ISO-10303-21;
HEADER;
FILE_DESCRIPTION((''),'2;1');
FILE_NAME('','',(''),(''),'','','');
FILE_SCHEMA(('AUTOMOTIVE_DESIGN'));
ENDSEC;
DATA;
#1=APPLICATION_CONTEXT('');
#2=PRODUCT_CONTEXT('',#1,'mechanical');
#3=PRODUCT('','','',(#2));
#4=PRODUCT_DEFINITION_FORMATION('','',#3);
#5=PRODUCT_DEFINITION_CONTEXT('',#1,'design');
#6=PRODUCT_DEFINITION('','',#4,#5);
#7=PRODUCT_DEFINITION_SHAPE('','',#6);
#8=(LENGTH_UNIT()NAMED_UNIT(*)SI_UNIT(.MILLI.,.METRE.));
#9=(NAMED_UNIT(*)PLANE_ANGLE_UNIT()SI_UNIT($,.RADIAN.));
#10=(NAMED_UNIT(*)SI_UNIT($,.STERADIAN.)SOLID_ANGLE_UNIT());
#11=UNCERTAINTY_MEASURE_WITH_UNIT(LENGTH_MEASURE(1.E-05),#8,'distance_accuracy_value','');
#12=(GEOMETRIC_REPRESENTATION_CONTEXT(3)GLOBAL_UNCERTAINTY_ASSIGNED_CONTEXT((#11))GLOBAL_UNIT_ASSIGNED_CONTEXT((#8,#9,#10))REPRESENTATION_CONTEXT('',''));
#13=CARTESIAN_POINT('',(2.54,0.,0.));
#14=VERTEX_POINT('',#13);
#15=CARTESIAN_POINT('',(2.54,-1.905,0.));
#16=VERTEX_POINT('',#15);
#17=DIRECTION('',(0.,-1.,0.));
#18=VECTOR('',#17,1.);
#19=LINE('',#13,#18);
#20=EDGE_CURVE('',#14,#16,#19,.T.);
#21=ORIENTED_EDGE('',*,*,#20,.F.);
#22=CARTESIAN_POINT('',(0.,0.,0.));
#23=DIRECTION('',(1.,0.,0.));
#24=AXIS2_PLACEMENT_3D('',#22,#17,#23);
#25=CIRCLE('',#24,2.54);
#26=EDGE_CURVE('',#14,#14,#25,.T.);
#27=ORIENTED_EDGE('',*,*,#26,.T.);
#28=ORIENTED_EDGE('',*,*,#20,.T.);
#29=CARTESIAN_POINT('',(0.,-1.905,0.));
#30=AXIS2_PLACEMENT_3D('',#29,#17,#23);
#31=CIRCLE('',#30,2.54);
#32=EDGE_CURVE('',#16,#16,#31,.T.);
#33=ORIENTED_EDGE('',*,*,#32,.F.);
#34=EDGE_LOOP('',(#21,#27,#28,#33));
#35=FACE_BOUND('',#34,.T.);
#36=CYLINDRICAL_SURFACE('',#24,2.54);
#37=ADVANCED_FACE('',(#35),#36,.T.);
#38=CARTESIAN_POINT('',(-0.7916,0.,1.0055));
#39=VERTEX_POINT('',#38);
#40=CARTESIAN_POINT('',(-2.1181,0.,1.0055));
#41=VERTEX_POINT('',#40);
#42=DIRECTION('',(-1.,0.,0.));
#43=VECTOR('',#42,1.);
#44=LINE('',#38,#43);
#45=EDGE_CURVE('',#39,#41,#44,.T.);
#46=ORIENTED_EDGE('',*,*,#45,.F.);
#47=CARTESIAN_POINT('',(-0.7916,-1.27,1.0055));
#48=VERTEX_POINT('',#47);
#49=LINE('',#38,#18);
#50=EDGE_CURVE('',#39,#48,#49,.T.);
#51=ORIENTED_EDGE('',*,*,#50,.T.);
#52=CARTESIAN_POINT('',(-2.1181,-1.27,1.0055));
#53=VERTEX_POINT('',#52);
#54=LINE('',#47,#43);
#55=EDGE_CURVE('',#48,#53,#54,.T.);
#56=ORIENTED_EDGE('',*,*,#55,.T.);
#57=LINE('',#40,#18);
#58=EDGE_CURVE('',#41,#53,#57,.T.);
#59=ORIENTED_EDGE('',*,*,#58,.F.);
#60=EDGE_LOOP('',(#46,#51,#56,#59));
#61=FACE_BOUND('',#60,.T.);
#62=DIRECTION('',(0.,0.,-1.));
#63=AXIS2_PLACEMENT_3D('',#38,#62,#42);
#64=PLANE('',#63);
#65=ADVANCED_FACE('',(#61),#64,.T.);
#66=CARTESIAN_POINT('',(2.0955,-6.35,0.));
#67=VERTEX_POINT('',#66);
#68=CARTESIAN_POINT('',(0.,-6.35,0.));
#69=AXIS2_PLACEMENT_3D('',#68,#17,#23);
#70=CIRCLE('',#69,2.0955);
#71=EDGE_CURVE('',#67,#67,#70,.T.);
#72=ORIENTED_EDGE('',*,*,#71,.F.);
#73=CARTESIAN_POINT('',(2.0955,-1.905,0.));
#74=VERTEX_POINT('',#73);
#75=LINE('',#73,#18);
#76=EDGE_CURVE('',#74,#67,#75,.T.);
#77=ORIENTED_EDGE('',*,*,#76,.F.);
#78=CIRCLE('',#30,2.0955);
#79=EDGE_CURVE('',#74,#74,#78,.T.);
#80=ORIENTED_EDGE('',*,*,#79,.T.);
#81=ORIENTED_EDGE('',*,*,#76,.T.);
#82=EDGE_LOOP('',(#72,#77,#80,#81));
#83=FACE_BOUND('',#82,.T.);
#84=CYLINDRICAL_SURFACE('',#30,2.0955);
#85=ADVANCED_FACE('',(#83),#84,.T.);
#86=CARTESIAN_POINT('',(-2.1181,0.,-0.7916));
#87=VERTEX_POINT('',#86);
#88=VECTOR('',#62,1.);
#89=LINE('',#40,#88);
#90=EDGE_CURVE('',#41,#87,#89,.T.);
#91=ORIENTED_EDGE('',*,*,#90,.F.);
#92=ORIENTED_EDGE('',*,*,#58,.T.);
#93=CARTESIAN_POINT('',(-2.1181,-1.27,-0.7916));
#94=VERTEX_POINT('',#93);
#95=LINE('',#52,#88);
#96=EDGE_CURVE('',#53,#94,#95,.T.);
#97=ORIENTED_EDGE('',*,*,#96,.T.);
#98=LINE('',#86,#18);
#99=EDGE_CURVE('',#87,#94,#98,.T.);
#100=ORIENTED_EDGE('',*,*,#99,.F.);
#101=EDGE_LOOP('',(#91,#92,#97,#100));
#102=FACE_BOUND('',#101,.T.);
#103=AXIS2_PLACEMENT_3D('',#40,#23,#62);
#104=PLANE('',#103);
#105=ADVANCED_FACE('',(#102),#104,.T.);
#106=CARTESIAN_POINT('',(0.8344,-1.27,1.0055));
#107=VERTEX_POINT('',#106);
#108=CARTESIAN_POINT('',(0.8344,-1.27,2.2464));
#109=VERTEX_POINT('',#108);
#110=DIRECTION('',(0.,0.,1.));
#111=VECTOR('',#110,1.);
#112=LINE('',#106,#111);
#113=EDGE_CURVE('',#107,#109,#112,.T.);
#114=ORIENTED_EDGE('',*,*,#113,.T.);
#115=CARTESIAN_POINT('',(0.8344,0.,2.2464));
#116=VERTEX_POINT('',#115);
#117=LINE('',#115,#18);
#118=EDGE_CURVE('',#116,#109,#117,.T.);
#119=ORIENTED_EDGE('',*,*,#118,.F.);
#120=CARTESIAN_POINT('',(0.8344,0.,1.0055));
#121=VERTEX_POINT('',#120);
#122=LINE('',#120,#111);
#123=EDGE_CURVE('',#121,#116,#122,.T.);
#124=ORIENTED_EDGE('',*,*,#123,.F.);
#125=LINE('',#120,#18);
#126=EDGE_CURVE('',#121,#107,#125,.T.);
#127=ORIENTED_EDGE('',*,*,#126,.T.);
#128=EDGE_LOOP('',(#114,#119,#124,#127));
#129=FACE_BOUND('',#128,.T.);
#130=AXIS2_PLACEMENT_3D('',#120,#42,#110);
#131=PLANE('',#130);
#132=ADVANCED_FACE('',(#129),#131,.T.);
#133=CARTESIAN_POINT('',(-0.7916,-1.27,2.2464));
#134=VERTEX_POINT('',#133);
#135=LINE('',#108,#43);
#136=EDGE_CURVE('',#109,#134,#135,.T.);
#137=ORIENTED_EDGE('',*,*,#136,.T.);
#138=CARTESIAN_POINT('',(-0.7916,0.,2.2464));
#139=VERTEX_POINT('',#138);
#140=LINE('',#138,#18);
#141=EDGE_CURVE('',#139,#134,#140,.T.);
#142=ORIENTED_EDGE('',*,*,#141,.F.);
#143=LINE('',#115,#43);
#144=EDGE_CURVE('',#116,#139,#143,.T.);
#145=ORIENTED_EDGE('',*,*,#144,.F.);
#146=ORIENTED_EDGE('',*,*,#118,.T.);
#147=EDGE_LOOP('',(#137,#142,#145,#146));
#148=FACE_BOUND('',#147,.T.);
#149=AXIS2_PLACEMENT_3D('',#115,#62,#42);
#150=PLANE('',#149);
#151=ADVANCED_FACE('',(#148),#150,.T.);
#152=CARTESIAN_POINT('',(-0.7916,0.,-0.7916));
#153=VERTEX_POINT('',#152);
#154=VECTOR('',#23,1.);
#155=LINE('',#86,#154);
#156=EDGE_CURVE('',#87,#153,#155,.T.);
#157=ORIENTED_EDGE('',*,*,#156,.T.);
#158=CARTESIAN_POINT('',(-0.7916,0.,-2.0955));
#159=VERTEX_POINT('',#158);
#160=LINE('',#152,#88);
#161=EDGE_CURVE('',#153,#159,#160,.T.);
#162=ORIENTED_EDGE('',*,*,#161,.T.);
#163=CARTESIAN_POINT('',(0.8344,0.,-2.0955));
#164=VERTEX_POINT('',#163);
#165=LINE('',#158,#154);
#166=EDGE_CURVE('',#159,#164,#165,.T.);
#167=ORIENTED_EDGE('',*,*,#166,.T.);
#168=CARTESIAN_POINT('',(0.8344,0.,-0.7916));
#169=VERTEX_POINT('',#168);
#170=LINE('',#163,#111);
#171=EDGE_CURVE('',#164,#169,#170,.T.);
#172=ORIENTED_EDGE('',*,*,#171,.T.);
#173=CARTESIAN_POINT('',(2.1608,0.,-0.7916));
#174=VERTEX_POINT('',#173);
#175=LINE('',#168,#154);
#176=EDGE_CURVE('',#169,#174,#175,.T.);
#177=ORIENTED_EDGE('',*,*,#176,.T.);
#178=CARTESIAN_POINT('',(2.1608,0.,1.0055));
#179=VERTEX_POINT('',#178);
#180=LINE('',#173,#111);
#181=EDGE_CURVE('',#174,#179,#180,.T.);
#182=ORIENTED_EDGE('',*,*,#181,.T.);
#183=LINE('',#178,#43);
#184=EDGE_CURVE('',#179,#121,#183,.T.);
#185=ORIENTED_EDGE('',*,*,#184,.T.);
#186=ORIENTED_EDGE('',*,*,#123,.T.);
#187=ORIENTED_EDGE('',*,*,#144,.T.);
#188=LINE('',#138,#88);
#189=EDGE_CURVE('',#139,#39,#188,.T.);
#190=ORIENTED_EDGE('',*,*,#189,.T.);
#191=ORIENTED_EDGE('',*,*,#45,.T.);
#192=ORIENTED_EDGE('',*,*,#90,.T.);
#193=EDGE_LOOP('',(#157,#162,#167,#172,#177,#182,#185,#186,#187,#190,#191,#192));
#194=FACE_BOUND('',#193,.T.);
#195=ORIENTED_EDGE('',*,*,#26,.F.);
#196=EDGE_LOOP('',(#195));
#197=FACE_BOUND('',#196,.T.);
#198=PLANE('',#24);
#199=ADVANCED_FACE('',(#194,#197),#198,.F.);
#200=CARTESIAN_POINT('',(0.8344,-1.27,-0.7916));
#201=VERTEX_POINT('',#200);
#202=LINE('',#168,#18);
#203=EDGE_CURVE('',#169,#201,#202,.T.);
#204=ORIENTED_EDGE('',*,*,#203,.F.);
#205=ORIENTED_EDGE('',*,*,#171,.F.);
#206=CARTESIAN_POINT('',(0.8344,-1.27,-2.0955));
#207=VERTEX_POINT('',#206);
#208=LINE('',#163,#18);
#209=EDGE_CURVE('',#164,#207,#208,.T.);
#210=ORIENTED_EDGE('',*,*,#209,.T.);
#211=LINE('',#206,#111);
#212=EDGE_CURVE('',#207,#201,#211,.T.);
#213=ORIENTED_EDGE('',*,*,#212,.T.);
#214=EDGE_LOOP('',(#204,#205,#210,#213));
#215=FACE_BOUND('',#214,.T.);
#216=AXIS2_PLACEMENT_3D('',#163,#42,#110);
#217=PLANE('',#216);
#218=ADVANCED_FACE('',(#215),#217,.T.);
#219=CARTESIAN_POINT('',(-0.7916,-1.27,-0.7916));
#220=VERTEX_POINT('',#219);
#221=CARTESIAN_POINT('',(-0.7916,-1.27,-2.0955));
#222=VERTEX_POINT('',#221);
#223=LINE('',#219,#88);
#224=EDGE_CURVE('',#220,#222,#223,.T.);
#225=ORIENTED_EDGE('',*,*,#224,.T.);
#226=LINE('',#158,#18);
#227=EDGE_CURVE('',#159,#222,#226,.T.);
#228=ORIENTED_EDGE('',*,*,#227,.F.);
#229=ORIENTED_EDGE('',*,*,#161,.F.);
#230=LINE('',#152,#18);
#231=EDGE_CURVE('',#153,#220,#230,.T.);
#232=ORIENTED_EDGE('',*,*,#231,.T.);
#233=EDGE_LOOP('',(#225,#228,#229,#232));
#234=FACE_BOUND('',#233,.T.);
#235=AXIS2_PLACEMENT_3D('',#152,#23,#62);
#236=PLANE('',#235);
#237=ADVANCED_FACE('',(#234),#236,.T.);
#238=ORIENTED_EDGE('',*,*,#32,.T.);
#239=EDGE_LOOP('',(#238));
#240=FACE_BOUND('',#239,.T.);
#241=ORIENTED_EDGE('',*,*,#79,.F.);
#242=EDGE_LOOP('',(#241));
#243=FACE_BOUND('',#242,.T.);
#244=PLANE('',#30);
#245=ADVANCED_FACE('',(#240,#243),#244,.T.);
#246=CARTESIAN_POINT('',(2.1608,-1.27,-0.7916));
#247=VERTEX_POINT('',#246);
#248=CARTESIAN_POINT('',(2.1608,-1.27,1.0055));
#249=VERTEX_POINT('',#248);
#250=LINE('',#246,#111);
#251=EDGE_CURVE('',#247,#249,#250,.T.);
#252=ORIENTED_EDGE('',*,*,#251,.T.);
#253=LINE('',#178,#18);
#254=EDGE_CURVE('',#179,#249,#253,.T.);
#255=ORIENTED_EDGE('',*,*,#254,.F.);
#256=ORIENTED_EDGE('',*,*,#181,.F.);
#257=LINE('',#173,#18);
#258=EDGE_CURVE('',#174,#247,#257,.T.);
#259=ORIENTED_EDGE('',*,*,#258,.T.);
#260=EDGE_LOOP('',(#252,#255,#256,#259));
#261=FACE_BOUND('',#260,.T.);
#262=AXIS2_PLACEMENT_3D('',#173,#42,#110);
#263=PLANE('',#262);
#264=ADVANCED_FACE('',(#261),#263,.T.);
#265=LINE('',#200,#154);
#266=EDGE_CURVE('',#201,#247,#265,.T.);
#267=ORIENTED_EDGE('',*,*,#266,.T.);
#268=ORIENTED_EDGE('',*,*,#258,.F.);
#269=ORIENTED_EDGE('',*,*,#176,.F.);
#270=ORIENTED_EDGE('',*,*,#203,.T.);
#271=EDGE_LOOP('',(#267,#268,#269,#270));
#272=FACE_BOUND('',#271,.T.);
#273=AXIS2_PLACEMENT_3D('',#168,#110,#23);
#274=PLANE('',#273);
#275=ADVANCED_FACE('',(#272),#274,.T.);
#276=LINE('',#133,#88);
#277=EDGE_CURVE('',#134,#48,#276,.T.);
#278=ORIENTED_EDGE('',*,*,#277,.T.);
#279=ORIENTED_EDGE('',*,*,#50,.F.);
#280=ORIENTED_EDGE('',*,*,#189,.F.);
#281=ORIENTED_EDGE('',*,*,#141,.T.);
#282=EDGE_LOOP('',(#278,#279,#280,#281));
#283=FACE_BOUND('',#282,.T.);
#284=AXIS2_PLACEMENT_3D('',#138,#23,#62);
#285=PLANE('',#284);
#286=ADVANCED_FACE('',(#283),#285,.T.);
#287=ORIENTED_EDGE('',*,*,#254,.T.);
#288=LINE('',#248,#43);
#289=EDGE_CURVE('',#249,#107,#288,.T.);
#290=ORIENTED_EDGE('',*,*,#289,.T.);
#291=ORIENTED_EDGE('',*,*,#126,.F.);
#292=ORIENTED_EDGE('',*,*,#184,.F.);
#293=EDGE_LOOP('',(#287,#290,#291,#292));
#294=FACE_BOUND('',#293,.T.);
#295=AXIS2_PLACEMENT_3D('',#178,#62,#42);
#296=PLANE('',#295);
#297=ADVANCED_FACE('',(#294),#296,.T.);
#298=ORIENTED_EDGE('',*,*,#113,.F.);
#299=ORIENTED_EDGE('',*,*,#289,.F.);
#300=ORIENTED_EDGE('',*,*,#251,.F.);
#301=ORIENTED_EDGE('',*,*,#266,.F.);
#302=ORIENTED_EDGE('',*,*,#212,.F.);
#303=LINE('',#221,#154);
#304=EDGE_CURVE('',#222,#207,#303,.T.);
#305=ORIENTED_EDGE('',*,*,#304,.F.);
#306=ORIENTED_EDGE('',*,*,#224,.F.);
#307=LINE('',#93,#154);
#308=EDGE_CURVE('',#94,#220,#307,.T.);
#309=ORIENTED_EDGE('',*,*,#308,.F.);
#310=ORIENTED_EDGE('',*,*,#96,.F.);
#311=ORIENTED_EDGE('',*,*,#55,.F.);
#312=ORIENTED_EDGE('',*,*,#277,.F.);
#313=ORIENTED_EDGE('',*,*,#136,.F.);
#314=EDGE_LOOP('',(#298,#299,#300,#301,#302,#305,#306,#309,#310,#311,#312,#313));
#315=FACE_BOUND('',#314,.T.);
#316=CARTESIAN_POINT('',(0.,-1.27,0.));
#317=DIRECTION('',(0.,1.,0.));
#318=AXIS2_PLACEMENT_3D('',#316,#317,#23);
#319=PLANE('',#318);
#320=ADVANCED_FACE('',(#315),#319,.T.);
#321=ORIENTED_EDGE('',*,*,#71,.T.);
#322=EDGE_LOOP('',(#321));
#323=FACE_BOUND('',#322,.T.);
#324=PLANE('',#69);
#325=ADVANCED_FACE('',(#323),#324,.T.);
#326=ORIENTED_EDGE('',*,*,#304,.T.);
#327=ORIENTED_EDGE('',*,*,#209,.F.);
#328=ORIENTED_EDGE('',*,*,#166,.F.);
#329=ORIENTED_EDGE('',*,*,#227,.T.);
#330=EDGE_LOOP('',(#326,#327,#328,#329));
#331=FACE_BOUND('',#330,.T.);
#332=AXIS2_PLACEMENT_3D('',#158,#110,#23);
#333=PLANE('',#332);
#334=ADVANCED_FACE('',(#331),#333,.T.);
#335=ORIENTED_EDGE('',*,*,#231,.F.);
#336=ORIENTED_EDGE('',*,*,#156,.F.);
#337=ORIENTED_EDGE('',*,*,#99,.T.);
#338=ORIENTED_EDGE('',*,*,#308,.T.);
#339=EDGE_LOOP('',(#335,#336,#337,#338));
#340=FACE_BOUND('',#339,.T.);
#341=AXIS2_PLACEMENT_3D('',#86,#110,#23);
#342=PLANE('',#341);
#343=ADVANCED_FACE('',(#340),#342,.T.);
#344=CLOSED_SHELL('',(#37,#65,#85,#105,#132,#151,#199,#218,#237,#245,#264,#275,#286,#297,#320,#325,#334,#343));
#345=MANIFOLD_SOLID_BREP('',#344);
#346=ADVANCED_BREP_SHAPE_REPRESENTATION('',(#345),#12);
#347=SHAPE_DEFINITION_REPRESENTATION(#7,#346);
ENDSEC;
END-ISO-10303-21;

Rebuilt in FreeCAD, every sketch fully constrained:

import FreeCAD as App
import Part
import Sketcher
from FreeCAD import Vector
Q = App.Units.Quantity

doc = App.newDocument("Part")
body = doc.addObject("PartDesign::Body", "Body")

# Sketch on XY plane
sketch1 = body.newObject("Sketcher::SketchObject", "Sketch")
sketch1.AttachmentSupport = (doc.getObject("XY_Plane"), [""])
sketch1.MapMode = "FlatFace"
sketch1.addGeometry([
    Part.LineSegment(Vector(2.54, 0, 0), Vector(0, 0, 0)),  # 0
    Part.LineSegment(Vector(0, 0, 0), Vector(0, -6.35, 0)),  # 1
    Part.LineSegment(Vector(0, -6.35, 0), Vector(2.0955, -6.35, 0)),  # 2
    Part.LineSegment(Vector(2.0955, -6.35, 0), Vector(2.0955, -1.905, 0)),  # 3
    Part.LineSegment(Vector(2.0955, -1.905, 0), Vector(2.54, -1.905, 0)),  # 4
    Part.LineSegment(Vector(2.54, -1.905, 0), Vector(2.54, 0, 0)),  # 5
], False)
sketch1.addConstraint([
    Sketcher.Constraint("Coincident", 0, 2, 1, 1),
    Sketcher.Constraint("Coincident", 1, 2, 2, 1),
    Sketcher.Constraint("Coincident", 2, 2, 3, 1),
    Sketcher.Constraint("Coincident", 3, 2, 4, 1),
    Sketcher.Constraint("Coincident", 4, 2, 5, 1),
    Sketcher.Constraint("Coincident", 5, 2, 0, 1),
    Sketcher.Constraint("Horizontal", 0),
    Sketcher.Constraint("Vertical", 1),
    Sketcher.Constraint("Horizontal", 2),
    Sketcher.Constraint("Vertical", 3),
    Sketcher.Constraint("Horizontal", 4),
    Sketcher.Constraint("Vertical", 5),
    Sketcher.Constraint("Coincident", 0, 2, -1, 1),
    Sketcher.Constraint("DistanceX", 0, 2, 0, 1, Q("0.1 in")),
    Sketcher.Constraint("DistanceY", 3, 1, 3, 2, Q("0.175 in")),
    Sketcher.Constraint("DistanceY", 5, 1, 5, 2, Q("0.075 in")),
    Sketcher.Constraint("DistanceX", 4, 1, 4, 2, Q("0.0175 in")),
])
revolution = body.newObject("PartDesign::Revolution", "Revolution")
revolution.Profile = sketch1
revolution.ReferenceAxis = (sketch1, ["V_Axis"])
revolution.Angle = 360

# Sketch on XZ plane
sketch2 = body.newObject("Sketcher::SketchObject", "Sketch001")
sketch2.AttachmentSupport = (doc.getObject("XZ_Plane"), [""])
sketch2.MapMode = "FlatFace"
sketch2.addGeometry([
    Part.LineSegment(Vector(2.1608, 1.0055, 0), Vector(2.1608, -0.7916, 0)),  # 0
    Part.LineSegment(Vector(2.1608, -0.7916, 0), Vector(0.8344, -0.7916, 0)),  # 1
    Part.LineSegment(Vector(0.8344, -0.7916, 0), Vector(0.8344, -2.0955, 0)),  # 2
    Part.LineSegment(Vector(0.8344, -2.0955, 0), Vector(-0.7916, -2.0955, 0)),  # 3
    Part.LineSegment(Vector(-0.7916, -2.0955, 0), Vector(-0.7916, -0.7916, 0)),  # 4
    Part.LineSegment(Vector(-0.7916, -0.7916, 0), Vector(-2.1181, -0.7916, 0)),  # 5
    Part.LineSegment(Vector(-2.1181, -0.7916, 0), Vector(-2.1181, 1.0055, 0)),  # 6
    Part.LineSegment(Vector(-2.1181, 1.0055, 0), Vector(-0.7916, 1.0055, 0)),  # 7
    Part.LineSegment(Vector(-0.7916, 1.0055, 0), Vector(-0.7916, 2.2464, 0)),  # 8
    Part.LineSegment(Vector(-0.7916, 2.2464, 0), Vector(0.8344, 2.2464, 0)),  # 9
    Part.LineSegment(Vector(0.8344, 2.2464, 0), Vector(0.8344, 1.0055, 0)),  # 10
    Part.LineSegment(Vector(0.8344, 1.0055, 0), Vector(2.1608, 1.0055, 0)),  # 11
], False)
sketch2.addConstraint([
    Sketcher.Constraint("Coincident", 0, 2, 1, 1),
    Sketcher.Constraint("Coincident", 1, 2, 2, 1),
    Sketcher.Constraint("Coincident", 2, 2, 3, 1),
    Sketcher.Constraint("Coincident", 3, 2, 4, 1),
    Sketcher.Constraint("Coincident", 4, 2, 5, 1),
    Sketcher.Constraint("Coincident", 5, 2, 6, 1),
    Sketcher.Constraint("Coincident", 6, 2, 7, 1),
    Sketcher.Constraint("Coincident", 7, 2, 8, 1),
    Sketcher.Constraint("Coincident", 8, 2, 9, 1),
    Sketcher.Constraint("Coincident", 9, 2, 10, 1),
    Sketcher.Constraint("Coincident", 10, 2, 11, 1),
    Sketcher.Constraint("Coincident", 11, 2, 0, 1),
    Sketcher.Constraint("Vertical", 0),
    Sketcher.Constraint("Horizontal", 1),
    Sketcher.Constraint("Vertical", 2),
    Sketcher.Constraint("Horizontal", 3),
    Sketcher.Constraint("Vertical", 4),
    Sketcher.Constraint("Horizontal", 5),
    Sketcher.Constraint("Vertical", 6),
    Sketcher.Constraint("Horizontal", 7),
    Sketcher.Constraint("Vertical", 8),
    Sketcher.Constraint("Horizontal", 9),
    Sketcher.Constraint("Vertical", 10),
    Sketcher.Constraint("Horizontal", 11),
    Sketcher.Constraint("Horizontal", 1, 2, 4, 2),
    Sketcher.Constraint("Horizontal", 7, 2, 10, 2),
    Sketcher.Constraint("Vertical", 4, 2, 7, 2),
    Sketcher.Constraint("Vertical", 2, 2, 9, 2),
    Sketcher.Constraint("Equal", 1, 5),
    Sketcher.Constraint("DistanceX", 1, 2, 1, 1, 1.3264),
    Sketcher.Constraint("DistanceX", 3, 2, 3, 1, 1.626),
    Sketcher.Constraint("DistanceY", 0, 2, 0, 1, 1.797),
    Sketcher.Constraint("DistanceY", 2, 2, 2, 1, 1.304),
    Sketcher.Constraint("DistanceY", 8, 1, 8, 2, 1.241),
    Sketcher.Constraint("DistanceY", 2, 2, -1, 1, Q("0.0825 in")),
    Sketcher.Constraint("DistanceX", 5, 2, -1, 1, Q("0.0834 in")),
])
pocket1 = body.newObject("PartDesign::Pocket", "Pocket")
pocket1.Profile = sketch2
pocket1.Length = Q("0.05 in")
pocket1.Reversed = True

doc.recompute()
